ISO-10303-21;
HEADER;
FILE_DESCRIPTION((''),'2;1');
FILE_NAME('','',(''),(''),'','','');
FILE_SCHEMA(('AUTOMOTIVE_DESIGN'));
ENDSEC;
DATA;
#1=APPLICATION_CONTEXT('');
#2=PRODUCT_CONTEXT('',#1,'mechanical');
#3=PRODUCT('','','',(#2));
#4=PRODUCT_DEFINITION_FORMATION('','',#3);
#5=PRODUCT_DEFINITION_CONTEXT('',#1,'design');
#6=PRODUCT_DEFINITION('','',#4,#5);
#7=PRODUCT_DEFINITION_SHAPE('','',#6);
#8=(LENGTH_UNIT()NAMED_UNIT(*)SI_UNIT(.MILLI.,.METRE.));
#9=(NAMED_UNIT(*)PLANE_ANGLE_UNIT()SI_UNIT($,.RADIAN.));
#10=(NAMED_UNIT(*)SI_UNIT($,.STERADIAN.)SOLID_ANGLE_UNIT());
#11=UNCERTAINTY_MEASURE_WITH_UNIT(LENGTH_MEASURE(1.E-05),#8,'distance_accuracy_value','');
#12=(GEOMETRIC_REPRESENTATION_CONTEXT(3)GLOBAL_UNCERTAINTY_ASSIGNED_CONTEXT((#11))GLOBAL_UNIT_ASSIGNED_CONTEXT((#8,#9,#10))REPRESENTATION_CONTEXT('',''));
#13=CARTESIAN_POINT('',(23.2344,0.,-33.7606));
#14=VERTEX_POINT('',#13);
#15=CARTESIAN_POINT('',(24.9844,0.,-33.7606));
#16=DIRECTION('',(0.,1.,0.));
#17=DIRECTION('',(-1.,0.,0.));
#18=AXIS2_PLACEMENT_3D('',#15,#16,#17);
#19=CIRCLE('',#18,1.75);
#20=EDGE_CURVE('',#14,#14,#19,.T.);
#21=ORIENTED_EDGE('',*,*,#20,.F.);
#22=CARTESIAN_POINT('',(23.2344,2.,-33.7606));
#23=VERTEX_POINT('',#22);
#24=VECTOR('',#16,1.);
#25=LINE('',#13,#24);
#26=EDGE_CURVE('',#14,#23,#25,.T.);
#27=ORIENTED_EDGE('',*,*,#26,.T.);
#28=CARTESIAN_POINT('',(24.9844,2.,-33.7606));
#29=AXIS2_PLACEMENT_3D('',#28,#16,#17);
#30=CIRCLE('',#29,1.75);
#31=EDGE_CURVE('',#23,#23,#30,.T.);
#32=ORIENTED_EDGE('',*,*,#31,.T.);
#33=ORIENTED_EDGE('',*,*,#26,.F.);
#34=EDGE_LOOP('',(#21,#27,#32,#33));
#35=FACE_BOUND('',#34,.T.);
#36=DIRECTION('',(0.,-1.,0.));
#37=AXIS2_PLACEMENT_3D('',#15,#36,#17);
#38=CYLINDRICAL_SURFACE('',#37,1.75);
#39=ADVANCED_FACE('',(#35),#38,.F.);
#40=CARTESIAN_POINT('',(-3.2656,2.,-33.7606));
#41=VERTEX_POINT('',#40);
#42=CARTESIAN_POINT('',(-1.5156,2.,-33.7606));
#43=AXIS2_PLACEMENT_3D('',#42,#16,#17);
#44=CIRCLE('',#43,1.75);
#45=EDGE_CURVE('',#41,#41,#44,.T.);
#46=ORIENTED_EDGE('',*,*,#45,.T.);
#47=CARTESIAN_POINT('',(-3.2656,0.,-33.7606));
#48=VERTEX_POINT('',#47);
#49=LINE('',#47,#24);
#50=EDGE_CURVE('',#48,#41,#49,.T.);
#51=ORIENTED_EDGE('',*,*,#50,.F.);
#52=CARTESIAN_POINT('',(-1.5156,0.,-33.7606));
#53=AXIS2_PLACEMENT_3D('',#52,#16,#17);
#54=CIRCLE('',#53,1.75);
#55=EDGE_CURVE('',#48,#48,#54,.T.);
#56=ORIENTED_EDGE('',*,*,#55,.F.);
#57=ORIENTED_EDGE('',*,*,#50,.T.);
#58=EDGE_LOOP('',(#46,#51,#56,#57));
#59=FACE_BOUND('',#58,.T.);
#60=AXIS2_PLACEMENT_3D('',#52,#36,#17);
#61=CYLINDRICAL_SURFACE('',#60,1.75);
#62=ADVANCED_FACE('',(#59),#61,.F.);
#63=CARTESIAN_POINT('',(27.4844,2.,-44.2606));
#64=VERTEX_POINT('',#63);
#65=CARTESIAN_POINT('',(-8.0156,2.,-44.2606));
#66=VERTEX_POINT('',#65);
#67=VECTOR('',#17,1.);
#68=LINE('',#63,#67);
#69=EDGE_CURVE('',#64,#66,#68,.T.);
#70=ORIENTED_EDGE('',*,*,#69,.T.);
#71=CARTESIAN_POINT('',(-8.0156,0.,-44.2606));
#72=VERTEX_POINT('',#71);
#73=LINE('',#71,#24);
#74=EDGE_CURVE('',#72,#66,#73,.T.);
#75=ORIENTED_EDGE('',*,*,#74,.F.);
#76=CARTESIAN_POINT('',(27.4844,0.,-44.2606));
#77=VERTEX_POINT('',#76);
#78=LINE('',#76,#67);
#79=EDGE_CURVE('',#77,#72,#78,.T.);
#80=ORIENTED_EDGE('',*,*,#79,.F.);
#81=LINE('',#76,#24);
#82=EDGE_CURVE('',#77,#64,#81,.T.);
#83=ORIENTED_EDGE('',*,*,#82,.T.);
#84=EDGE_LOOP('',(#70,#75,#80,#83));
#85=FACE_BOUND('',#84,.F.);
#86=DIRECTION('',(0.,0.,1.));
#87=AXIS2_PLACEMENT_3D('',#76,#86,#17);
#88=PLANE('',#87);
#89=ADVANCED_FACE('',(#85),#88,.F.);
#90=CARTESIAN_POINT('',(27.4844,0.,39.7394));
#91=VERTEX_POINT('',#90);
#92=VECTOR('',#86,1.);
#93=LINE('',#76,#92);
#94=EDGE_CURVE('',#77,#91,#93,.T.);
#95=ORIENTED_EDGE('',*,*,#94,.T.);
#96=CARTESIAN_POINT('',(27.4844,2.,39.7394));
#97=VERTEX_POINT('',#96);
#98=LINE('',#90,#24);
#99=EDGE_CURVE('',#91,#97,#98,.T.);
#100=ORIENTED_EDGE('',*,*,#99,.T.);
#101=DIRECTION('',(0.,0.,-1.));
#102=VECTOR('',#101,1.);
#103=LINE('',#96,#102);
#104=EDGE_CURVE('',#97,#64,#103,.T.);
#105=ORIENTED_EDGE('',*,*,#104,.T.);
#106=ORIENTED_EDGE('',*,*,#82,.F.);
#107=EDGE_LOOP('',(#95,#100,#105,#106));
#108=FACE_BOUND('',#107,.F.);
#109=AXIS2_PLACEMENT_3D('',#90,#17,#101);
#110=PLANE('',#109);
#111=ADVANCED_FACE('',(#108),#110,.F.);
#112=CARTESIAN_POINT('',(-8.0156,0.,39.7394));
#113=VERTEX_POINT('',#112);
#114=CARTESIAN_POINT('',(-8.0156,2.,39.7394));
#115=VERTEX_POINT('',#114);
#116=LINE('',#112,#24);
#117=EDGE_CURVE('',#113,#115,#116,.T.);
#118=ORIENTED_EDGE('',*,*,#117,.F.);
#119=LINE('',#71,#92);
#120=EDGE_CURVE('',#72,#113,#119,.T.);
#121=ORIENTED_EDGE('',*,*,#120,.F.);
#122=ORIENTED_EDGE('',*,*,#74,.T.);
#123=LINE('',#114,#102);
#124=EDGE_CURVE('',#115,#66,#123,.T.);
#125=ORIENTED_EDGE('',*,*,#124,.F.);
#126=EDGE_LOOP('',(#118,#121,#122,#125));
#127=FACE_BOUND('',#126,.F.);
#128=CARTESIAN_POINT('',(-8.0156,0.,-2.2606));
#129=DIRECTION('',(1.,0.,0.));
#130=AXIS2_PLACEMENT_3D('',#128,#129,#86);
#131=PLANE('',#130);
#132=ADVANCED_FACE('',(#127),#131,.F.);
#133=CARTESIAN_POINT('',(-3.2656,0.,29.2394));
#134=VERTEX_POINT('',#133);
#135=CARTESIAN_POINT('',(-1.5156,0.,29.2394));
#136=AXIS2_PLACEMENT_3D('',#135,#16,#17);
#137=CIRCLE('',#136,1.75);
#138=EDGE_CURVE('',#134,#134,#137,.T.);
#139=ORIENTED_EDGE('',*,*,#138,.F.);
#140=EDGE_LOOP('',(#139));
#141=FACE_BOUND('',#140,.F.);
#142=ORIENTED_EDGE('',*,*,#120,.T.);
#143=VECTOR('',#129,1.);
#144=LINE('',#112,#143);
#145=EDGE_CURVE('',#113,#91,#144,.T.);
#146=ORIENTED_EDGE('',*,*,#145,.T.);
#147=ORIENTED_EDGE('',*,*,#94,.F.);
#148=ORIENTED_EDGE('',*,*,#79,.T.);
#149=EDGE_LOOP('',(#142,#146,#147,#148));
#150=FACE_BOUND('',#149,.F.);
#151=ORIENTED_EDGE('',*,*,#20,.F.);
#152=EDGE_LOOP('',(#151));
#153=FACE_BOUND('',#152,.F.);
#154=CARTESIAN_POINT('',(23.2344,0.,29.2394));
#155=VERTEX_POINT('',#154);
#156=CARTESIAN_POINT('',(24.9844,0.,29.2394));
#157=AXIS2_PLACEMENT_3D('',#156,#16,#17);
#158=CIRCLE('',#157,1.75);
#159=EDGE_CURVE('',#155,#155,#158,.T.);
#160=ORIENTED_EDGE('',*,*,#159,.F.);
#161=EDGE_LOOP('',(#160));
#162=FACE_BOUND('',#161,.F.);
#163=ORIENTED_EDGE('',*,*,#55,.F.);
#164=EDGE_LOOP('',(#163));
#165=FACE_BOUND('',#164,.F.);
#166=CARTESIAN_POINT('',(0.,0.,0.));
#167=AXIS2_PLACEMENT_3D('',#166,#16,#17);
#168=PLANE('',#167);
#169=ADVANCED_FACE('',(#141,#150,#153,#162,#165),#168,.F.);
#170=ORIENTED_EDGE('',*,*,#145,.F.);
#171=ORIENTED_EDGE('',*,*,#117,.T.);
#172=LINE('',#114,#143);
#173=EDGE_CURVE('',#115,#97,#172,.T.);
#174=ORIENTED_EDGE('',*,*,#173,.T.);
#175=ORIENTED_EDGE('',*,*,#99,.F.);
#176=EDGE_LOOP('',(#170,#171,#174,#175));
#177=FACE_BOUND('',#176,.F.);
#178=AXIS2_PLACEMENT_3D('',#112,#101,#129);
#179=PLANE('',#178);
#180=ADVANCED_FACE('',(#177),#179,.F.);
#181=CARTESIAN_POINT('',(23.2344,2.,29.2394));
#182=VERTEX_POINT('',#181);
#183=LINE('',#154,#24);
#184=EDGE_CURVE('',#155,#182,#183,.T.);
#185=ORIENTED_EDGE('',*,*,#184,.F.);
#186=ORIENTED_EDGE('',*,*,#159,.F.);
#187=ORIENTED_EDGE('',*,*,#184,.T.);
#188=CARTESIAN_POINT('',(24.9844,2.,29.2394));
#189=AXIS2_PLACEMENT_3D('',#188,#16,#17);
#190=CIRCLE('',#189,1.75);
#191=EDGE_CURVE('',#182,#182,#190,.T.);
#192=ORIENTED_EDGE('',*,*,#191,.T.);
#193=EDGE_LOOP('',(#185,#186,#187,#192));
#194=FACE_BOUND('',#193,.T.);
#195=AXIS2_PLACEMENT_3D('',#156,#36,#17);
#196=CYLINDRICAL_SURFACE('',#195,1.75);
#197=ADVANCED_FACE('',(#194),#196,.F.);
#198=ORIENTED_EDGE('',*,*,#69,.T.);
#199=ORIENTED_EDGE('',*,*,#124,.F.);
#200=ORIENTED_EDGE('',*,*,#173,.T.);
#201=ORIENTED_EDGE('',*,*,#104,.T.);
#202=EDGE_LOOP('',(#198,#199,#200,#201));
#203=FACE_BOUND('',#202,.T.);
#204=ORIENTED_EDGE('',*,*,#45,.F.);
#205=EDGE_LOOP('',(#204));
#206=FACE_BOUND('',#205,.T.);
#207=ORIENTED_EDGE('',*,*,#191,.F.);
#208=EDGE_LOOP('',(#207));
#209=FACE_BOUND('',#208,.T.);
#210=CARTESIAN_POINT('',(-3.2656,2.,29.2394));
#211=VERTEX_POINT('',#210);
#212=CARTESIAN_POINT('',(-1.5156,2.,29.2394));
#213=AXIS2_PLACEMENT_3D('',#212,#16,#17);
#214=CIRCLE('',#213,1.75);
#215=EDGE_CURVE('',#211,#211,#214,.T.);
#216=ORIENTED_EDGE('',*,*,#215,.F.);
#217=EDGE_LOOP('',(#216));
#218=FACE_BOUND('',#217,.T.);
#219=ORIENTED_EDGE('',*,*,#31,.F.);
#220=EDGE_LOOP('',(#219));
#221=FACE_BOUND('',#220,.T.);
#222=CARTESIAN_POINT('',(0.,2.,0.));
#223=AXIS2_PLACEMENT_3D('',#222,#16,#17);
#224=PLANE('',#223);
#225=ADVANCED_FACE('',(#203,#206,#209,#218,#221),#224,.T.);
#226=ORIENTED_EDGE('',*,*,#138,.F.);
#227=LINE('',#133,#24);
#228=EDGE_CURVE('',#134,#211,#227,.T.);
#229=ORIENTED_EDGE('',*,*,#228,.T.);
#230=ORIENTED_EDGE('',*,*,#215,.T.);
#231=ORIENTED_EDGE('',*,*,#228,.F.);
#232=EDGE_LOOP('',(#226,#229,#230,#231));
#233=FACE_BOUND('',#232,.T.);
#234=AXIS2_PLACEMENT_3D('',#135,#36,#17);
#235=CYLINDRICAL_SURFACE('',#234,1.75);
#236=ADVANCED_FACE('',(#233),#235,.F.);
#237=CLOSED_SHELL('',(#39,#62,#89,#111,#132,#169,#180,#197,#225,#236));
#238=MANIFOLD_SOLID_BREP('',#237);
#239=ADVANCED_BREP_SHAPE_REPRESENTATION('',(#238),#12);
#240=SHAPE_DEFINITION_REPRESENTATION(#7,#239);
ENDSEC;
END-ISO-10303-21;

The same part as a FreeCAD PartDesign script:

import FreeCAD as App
import Part
import Sketcher

V = App.Vector
Q = App.Units.Quantity

doc = App.newDocument("Part")
body = doc.addObject("PartDesign::Body", "Body")

# Sketch on XZ plane
sketch1 = doc.addObject("Sketcher::SketchObject", "Sketch")
body.addObject(sketch1)
sketch1.AttachmentSupport = (doc.XZ_Plane, [""])
sketch1.MapMode = "FlatFace"
sketch1.addGeometry([
    Part.LineSegment(V(-8, 39.7, 0), V(27.5, 39.7, 0)),  # 0
    Part.LineSegment(V(27.5, 39.7, 0), V(27.5, -44.3, 0)),  # 1
    Part.LineSegment(V(27.5, -44.3, 0), V(-8, -44.3, 0)),  # 2
    Part.LineSegment(V(-8, -44.3, 0), V(-8, 39.7, 0)),  # 3
    Part.Circle(V(25, 29.2, 0), V(0, 0, 1), 1.8),  # 4
    Part.Circle(V(-1.5, 29.2, 0), V(0, 0, 1), 1.8),  # 5
    Part.Circle(V(-1.5, -33.8, 0), V(0, 0, 1), 1.8),  # 6
    Part.Circle(V(25, -33.8, 0), V(0, 0, 1), 1.8),  # 7
], False)
sketch1.addConstraint([
    Sketcher.Constraint("Coincident", 0, 2, 1, 1),
    Sketcher.Constraint("Coincident", 1, 2, 2, 1),
    Sketcher.Constraint("Coincident", 2, 2, 3, 1),
    Sketcher.Constraint("Coincident", 3, 2, 0, 1),
    Sketcher.Constraint("Horizontal", 0),
    Sketcher.Constraint("Vertical", 1),
    Sketcher.Constraint("Horizontal", 2),
    Sketcher.Constraint("Vertical", 3),
    Sketcher.Constraint("Equal", 4, 5),
    Sketcher.Constraint("Equal", 5, 6),
    Sketcher.Constraint("Equal", 6, 7),
    Sketcher.Constraint("Horizontal", 4, 3, 5, 3),
    Sketcher.Constraint("Horizontal", 6, 3, 7, 3),
    Sketcher.Constraint("Vertical", 5, 3, 6, 3),
    Sketcher.Constraint("Vertical", 4, 3, 7, 3),
    Sketcher.Constraint("Diameter", 4, Q("3.5 mm")),
    Sketcher.Constraint("DistanceY", 1, 2, 1, 1, Q("84 mm")),
    Sketcher.Constraint("DistanceX", 0, 1, 0, 2, Q("35.5 mm")),
    Sketcher.Constraint("DistanceY", 6, 3, 5, 3, Q("63 mm")),
    Sketcher.Constraint("DistanceX", 5, 3, 4, 3, Q("26.5 mm")),
    Sketcher.Constraint("DistanceY", 4, 3, 0, 2, Q("10.5 mm")),
    Sketcher.Constraint("DistanceX", 2, 2, 6, 3, Q("6.5 mm")),
    Sketcher.Constraint("DistanceX", -1, 1, 4, 3, Q("24.9844 mm")),
    Sketcher.Constraint("DistanceY", -1, 1, 4, 3, Q("29.2394 mm")),
])
pad1 = doc.addObject("PartDesign::Pad", "Pad")
body.addObject(pad1)
pad1.Profile = sketch1
pad1.Length = 2
pad1.Reversed = True

doc.recompute()
